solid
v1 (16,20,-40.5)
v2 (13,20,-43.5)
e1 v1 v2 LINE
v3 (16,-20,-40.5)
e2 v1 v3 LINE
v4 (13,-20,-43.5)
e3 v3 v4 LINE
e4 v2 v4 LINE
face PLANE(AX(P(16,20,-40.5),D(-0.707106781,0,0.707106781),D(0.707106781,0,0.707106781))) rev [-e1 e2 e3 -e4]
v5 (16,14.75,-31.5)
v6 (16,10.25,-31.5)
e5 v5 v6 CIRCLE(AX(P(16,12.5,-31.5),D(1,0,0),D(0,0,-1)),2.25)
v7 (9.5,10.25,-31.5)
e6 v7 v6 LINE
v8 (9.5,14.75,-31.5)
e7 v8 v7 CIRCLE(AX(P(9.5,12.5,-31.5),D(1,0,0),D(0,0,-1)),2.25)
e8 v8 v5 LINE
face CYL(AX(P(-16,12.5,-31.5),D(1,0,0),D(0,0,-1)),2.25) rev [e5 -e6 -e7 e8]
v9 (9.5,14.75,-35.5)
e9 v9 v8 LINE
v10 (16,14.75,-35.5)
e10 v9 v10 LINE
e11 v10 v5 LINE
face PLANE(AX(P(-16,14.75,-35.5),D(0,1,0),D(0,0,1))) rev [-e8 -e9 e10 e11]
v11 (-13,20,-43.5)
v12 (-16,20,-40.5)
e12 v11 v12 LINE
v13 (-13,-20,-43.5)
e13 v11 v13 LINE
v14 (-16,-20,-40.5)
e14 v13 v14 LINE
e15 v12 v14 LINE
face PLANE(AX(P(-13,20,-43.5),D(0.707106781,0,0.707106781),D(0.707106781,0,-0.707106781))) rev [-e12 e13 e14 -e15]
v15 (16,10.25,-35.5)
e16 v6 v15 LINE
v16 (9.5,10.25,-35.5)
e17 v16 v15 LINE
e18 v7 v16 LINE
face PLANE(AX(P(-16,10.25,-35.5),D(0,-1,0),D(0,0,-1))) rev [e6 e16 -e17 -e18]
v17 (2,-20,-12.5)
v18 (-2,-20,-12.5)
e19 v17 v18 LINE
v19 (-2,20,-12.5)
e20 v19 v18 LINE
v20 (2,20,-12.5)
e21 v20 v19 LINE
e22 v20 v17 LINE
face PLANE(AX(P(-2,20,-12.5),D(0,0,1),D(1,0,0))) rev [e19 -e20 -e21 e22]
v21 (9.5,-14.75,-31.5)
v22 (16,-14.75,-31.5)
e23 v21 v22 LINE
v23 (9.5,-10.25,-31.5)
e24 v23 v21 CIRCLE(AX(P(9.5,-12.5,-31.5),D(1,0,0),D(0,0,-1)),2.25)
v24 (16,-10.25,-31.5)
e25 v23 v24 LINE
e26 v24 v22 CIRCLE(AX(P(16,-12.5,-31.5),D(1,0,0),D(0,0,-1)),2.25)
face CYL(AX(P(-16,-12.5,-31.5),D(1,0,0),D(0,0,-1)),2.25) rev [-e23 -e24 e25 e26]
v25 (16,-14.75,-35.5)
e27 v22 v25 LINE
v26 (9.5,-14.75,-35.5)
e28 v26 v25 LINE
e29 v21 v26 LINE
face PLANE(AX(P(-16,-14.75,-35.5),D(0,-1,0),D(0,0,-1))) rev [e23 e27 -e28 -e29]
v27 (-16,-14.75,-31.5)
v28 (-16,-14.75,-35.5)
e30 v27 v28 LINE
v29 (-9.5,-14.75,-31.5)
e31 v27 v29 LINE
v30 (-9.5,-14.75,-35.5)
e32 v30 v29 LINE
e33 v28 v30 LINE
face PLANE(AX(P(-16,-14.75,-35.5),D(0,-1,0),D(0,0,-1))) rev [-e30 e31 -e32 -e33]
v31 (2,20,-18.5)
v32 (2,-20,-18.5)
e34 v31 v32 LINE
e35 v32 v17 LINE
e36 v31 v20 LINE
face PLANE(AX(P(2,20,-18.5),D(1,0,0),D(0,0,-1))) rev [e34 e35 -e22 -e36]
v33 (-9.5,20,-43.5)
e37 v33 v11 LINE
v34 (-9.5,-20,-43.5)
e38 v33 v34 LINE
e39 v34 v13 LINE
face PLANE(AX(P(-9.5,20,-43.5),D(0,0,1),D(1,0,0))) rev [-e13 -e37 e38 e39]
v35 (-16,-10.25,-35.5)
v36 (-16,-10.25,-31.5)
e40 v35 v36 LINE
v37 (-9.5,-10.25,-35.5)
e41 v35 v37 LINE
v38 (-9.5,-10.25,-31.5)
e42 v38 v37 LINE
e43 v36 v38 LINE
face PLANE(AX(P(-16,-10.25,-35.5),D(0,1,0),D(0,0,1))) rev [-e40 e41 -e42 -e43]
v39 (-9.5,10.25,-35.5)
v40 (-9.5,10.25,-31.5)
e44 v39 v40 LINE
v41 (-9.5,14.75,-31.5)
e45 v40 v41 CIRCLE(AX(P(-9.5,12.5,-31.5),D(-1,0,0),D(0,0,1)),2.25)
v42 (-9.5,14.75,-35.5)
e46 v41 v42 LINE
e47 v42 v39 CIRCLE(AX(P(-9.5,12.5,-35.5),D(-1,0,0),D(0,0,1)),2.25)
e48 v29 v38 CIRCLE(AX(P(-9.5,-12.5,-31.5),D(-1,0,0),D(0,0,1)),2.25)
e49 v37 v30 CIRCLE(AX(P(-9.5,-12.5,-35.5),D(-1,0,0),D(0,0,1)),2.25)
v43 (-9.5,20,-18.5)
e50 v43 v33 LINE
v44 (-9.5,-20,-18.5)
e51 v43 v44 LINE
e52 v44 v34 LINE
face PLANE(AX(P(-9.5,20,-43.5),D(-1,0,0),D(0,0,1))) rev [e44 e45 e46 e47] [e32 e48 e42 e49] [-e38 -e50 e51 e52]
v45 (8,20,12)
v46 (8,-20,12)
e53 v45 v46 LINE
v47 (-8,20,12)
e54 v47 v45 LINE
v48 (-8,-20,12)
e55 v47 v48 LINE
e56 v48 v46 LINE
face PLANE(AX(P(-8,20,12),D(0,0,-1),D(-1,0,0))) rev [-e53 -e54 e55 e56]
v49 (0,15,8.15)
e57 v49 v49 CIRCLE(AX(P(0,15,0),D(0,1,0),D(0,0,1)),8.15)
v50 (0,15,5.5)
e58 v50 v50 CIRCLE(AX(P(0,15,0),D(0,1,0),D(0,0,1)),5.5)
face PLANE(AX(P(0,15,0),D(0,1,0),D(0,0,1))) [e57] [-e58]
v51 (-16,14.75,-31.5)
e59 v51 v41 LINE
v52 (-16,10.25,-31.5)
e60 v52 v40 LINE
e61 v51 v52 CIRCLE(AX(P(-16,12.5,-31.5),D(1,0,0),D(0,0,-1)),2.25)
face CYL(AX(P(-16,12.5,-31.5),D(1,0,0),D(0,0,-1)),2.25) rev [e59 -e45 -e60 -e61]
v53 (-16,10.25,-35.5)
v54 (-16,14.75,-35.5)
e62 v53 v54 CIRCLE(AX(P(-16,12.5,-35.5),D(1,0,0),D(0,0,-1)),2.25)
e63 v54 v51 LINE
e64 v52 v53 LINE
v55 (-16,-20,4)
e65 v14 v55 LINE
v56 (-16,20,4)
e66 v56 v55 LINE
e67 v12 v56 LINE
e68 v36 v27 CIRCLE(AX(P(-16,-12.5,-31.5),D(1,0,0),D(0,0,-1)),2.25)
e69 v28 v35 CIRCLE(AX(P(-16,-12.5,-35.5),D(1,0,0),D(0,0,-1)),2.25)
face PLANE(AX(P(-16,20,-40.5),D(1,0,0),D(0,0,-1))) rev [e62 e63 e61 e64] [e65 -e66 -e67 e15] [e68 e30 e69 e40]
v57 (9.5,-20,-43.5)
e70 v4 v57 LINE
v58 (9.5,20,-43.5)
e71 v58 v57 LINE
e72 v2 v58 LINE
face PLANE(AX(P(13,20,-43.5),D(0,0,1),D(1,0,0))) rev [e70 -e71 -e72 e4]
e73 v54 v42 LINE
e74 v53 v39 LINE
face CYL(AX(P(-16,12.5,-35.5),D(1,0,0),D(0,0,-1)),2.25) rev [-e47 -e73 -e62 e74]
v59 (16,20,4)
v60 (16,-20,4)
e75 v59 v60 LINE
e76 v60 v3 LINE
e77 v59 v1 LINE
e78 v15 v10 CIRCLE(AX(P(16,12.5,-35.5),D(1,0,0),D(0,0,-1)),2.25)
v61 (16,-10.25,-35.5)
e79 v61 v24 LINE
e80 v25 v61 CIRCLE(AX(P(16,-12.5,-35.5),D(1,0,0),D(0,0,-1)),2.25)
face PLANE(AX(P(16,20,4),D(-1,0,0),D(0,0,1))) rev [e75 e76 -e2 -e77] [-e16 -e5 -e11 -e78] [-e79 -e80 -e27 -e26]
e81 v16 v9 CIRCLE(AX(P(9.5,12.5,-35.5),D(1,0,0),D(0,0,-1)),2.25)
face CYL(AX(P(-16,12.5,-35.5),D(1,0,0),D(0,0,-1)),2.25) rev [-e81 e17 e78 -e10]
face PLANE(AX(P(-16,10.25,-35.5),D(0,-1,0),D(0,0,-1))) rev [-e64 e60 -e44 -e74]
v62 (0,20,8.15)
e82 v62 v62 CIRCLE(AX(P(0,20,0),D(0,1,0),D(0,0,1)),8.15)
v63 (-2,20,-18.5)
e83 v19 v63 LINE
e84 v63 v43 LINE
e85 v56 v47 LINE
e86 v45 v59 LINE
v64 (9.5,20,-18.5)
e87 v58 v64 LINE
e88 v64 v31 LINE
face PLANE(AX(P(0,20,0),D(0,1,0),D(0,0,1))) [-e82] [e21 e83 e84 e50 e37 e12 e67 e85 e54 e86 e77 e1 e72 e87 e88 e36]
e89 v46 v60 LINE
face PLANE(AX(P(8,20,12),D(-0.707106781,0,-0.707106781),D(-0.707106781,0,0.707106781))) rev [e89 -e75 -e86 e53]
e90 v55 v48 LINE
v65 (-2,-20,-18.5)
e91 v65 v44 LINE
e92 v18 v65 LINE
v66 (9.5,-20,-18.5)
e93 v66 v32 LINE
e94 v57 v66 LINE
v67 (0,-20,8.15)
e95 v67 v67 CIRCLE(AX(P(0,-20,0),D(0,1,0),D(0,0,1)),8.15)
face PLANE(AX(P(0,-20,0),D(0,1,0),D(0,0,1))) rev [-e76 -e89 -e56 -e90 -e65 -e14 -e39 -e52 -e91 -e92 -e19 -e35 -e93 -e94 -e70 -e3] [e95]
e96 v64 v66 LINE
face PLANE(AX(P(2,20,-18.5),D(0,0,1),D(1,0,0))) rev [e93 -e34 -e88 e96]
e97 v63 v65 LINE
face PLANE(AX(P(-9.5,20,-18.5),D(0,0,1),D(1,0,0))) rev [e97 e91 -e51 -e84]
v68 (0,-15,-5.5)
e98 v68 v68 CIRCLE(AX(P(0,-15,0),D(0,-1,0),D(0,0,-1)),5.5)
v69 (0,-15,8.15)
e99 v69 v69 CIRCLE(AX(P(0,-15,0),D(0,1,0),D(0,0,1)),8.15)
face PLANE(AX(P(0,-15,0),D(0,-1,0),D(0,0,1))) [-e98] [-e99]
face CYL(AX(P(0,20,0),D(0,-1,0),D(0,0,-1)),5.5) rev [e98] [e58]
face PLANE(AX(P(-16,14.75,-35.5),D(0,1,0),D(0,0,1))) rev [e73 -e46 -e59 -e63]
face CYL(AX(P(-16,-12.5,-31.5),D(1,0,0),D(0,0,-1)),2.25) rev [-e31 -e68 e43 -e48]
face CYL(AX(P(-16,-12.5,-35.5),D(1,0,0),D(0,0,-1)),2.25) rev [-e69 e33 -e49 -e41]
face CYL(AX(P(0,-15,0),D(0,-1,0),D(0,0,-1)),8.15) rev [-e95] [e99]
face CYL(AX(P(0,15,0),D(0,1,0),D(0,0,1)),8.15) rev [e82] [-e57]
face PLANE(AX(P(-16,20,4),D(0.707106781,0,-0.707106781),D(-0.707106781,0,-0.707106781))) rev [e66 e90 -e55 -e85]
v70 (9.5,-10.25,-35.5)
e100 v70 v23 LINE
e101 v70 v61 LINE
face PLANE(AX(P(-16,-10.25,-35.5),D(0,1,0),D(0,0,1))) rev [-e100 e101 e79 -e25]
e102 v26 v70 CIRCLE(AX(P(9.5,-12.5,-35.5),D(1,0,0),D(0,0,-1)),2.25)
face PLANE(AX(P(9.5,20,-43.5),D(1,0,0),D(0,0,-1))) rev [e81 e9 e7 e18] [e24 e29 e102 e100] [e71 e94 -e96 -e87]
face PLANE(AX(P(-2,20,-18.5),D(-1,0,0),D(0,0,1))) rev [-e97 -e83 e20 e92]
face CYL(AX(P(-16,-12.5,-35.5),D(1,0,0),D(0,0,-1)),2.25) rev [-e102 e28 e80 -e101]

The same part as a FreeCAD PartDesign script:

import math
import FreeCAD as App
import Part
import Sketcher

V = App.Vector

doc = App.newDocument("Part")
body = doc.addObject("PartDesign::Body", "Body")

# Sketch on XZ plane
sketch1 = body.newObject("Sketcher::SketchObject", "Sketch")
sketch1.AttachmentSupport = (doc.getObject("XZ_Plane"), [""])
sketch1.MapMode = "FlatFace"
sketch1.addGeometry(Part.LineSegment(V(-9.5, -18.5, 0), V(-9.5, -43.5, 0)), False)
sketch1.addGeometry(Part.LineSegment(V(-9.5, -43.5, 0), V(-13, -43.5, 0)), False)
sketch1.addGeometry(Part.LineSegment(V(-13, -43.5, 0), V(-16, -40.5, 0)), False)
sketch1.addGeometry(Part.LineSegment(V(-16, -40.5, 0), V(-16, 4, 0)), False)
sketch1.addGeometry(Part.LineSegment(V(-16, 4, 0), V(-8, 12, 0)), False)
sketch1.addGeometry(Part.LineSegment(V(-8, 12, 0), V(8, 12, 0)), False)
sketch1.addGeometry(Part.LineSegment(V(8, 12, 0), V(16, 4, 0)), False)
sketch1.addGeometry(Part.LineSegment(V(16, 4, 0), V(16, -40.5, 0)), False)
sketch1.addGeometry(Part.LineSegment(V(16, -40.5, 0), V(13, -43.5, 0)), False)
sketch1.addGeometry(Part.LineSegment(V(13, -43.5, 0), V(9.5, -43.5, 0)), False)
sketch1.addGeometry(Part.LineSegment(V(9.5, -43.5, 0), V(9.5, -18.5, 0)), False)
sketch1.addGeometry(Part.LineSegment(V(9.5, -18.5, 0), V(2, -18.5, 0)), False)
sketch1.addGeometry(Part.LineSegment(V(2, -18.5, 0), V(2, -12.5, 0)), False)
sketch1.addGeometry(Part.LineSegment(V(2, -12.5, 0), V(-2, -12.5, 0)), False)
sketch1.addGeometry(Part.LineSegment(V(-2, -12.5, 0), V(-2, -18.5, 0)), False)
sketch1.addGeometry(Part.LineSegment(V(-2, -18.5, 0), V(-9.5, -18.5, 0)), False)
sketch1.addGeometry(Part.Circle(V(0, 0, 0), V(0, 0, 1), 5.5), False)
sketch1.addConstraint(Sketcher.Constraint("Coincident", 0, 2, 1, 1))
sketch1.addConstraint(Sketcher.Constraint("Coincident", 1, 2, 2, 1))
sketch1.addConstraint(Sketcher.Constraint("Coincident", 2, 2, 3, 1))
sketch1.addConstraint(Sketcher.Constraint("Coincident", 3, 2, 4, 1))
sketch1.addConstraint(Sketcher.Constraint("Coincident", 4, 2, 5, 1))
sketch1.addConstraint(Sketcher.Constraint("Coincident", 5, 2, 6, 1))
sketch1.addConstraint(Sketcher.Constraint("Coincident", 6, 2, 7, 1))
sketch1.addConstraint(Sketcher.Constraint("Coincident", 7, 2, 8, 1))
sketch1.addConstraint(Sketcher.Constraint("Coincident", 8, 2, 9, 1))
sketch1.addConstraint(Sketcher.Constraint("Coincident", 9, 2, 10, 1))
sketch1.addConstraint(Sketcher.Constraint("Coincident", 10, 2, 11, 1))
sketch1.addConstraint(Sketcher.Constraint("Coincident", 11, 2, 12, 1))
sketch1.addConstraint(Sketcher.Constraint("Coincident", 12, 2, 13, 1))
sketch1.addConstraint(Sketcher.Constraint("Coincident", 13, 2, 14, 1))
sketch1.addConstraint(Sketcher.Constraint("Coincident", 14, 2, 15, 1))
sketch1.addConstraint(Sketcher.Constraint("Coincident", 15, 2, 0, 1))
sketch1.addConstraint(Sketcher.Constraint("Vertical", 0))
sketch1.addConstraint(Sketcher.Constraint("Horizontal", 1))
sketch1.addConstraint(Sketcher.Constraint("Vertical", 3))
sketch1.addConstraint(Sketcher.Constraint("Horizontal", 5))
sketch1.addConstraint(Sketcher.Constraint("Vertical", 7))
sketch1.addConstraint(Sketcher.Constraint("Horizontal", 9))
sketch1.addConstraint(Sketcher.Constraint("Vertical", 10))
sketch1.addConstraint(Sketcher.Constraint("Horizontal", 11))
sketch1.addConstraint(Sketcher.Constraint("Vertical", 12))
sketch1.addConstraint(Sketcher.Constraint("Horizontal", 13))
sketch1.addConstraint(Sketcher.Constraint("Vertical", 14))
sketch1.addConstraint(Sketcher.Constraint("Horizontal", 15))
sketch1.addConstraint(Sketcher.Constraint("Coincident", 16, 3, -1, 1))
sketch1.addConstraint(Sketcher.Constraint("Symmetric", 3, 2, 6, 2, -2))
sketch1.addConstraint(Sketcher.Constraint("Symmetric", 1, 2, 8, 2, -2))
sketch1.addConstraint(Sketcher.Constraint("Symmetric", 11, 2, 14, 2, -2))
sketch1.addConstraint(Sketcher.Constraint("Perpendicular", 2, 4))
sketch1.addConstraint(Sketcher.Constraint("Perpendicular", 4, 6))
sketch1.addConstraint(Sketcher.Constraint("Perpendicular", 6, 8))
sketch1.addConstraint(Sketcher.Constraint("Horizontal", 2, 2, 7, 2))
sketch1.addConstraint(Sketcher.Constraint("Equal", 1, 9))
sketch1.addConstraint(Sketcher.Constraint("Diameter", 16, 11.0))
sketch1.addConstraint(Sketcher.Constraint("DistanceX", 5, 1, 5, 2, 16.0))
sketch1.addConstraint(Sketcher.Constraint("DistanceX", 13, 2, 13, 1, 4.0))
sketch1.addConstraint(Sketcher.Constraint("DistanceY", 0, 2, 0, 1, 25.0))
sketch1.addConstraint(Sketcher.Constraint("DistanceY", 12, 1, 12, 2, 6.0))
sketch1.addConstraint(Sketcher.Constraint("DistanceX", 1, 2, 1, 1, 3.5))
sketch1.addConstraint(Sketcher.Constraint("DistanceX", 11, 2, 11, 1, 7.5))
sketch1.addConstraint(Sketcher.Constraint("DistanceY", 3, 1, 3, 2, 44.5))
sketch1.addConstraint(Sketcher.Constraint("DistanceX", 2, 2, -1, 1, 16.0))
sketch1.addConstraint(Sketcher.Constraint("DistanceY", -1, 1, 3, 2, 4.0))
pad1 = body.newObject("PartDesign::Pad", "Pad")
pad1.Profile = sketch1
pad1.Length = 40
pad1.Midplane = True

# Sketch on XZ plane
sketch2 = body.newObject("Sketcher::SketchObject", "Sketch001")
sketch2.AttachmentSupport = (doc.getObject("XZ_Plane"), [""])
sketch2.MapMode = "FlatFace"
sketch2.AttachmentOffset = App.Placement(V(0, 0, -20), App.Rotation())
sketch2.addGeometry(Part.Circle(V(0, 0, 0), V(0, 0, 1), 8), False)
sketch2.addConstraint(Sketcher.Constraint("Coincident", 0, 3, -1, 1))
sketch2.addConstraint(Sketcher.Constraint("Diameter", 0, 16.3))
pocket1 = body.newObject("PartDesign::Pocket", "Pocket")
pocket1.Profile = sketch2
pocket1.Length = 5
pocket1.Reversed = True
doc.recompute()

mirrored = body.newObject("PartDesign::Mirrored", "Mirrored")
mirrored.Originals = [pocket1]
mirrored.MirrorPlane = (doc.getObject("XZ_Plane"), [""])
body.Tip = mirrored

# Sketch on YZ plane
sketch3 = body.newObject("Sketcher::SketchObject", "Sketch002")
sketch3.AttachmentSupport = (doc.getObject("YZ_Plane"), [""])
sketch3.MapMode = "FlatFace"
sketch3.AttachmentOffset = App.Placement(V(0, 0, 16), App.Rotation())
sketch3.addGeometry(Part.LineSegment(V(10.2, -31.5, 0), V(10.2, -35.5, 0)), False)
sketch3.addGeometry(Part.ArcOfCircle(Part.Circle(V(12.5, -35.5, 0), V(0, 0, 1), 2.2), math.radians(180), math.radians(360)), False)
sketch3.addGeometry(Part.LineSegment(V(14.8, -35.5, 0), V(14.8, -31.5, 0)), False)
sketch3.addGeometry(Part.ArcOfCircle(Part.Circle(V(12.5, -31.5, 0), V(0, 0, 1), 2.2), math.radians(0), math.radians(180)), False)
sketch3.addGeometry(Part.LineSegment(V(-14.8, -31.5, 0), V(-14.8, -35.5, 0)), False)
sketch3.addGeometry(Part.ArcOfCircle(Part.Circle(V(-12.5, -35.5, 0), V(0, 0, 1), 2.2), math.radians(180), math.radians(360)), False)
sketch3.addGeometry(Part.LineSegment(V(-10.2, -35.5, 0), V(-10.2, -31.5, 0)), False)
sketch3.addGeometry(Part.ArcOfCircle(Part.Circle(V(-12.5, -31.5, 0), V(0, 0, 1), 2.2), math.radians(0), math.radians(180)), False)
sketch3.addConstraint(Sketcher.Constraint("Tangent", 0, 2, 1, 1))
sketch3.addConstraint(Sketcher.Constraint("Tangent", 1, 2, 2, 1))
sketch3.addConstraint(Sketcher.Constraint("Tangent", 2, 2, 3, 1))
sketch3.addConstraint(Sketcher.Constraint("Tangent", 3, 2, 0, 1))
sketch3.addConstraint(Sketcher.Constraint("Tangent", 4, 2, 5, 1))
sketch3.addConstraint(Sketcher.Constraint("Tangent", 5, 2, 6, 1))
sketch3.addConstraint(Sketcher.Constraint("Tangent", 6, 2, 7, 1))
sketch3.addConstraint(Sketcher.Constraint("Tangent", 7, 2, 4, 1))
sketch3.addConstraint(Sketcher.Constraint("Vertical", 0))
sketch3.addConstraint(Sketcher.Constraint("Vertical", 2))
sketch3.addConstraint(Sketcher.Constraint("Vertical", 4))
sketch3.addConstraint(Sketcher.Constraint("Vertical", 6))
sketch3.addConstraint(Sketcher.Constraint("Equal", 3, 5))
sketch3.addConstraint(Sketcher.Constraint("Symmetric", 1, 3, 5, 3, -2))
sketch3.addConstraint(Sketcher.Constraint("Horizontal", 3, 3, 7, 3))
sketch3.addConstraint(Sketcher.Constraint("DistanceY", 0, 2, 0, 1, 4.0))
sketch3.addConstraint(Sketcher.Constraint("Radius", 1, 2.25))
sketch3.addConstraint(Sketcher.Constraint("DistanceX", 5, 3, 1, 3, 25.0))
sketch3.addConstraint(Sketcher.Constraint("DistanceY", 1, 3, -1, 1, 35.5))
pocket2 = body.newObject("PartDesign::Pocket", "Pocket001")
pocket2.Profile = sketch3
pocket2.Type = "ThroughAll"

doc.recompute()
